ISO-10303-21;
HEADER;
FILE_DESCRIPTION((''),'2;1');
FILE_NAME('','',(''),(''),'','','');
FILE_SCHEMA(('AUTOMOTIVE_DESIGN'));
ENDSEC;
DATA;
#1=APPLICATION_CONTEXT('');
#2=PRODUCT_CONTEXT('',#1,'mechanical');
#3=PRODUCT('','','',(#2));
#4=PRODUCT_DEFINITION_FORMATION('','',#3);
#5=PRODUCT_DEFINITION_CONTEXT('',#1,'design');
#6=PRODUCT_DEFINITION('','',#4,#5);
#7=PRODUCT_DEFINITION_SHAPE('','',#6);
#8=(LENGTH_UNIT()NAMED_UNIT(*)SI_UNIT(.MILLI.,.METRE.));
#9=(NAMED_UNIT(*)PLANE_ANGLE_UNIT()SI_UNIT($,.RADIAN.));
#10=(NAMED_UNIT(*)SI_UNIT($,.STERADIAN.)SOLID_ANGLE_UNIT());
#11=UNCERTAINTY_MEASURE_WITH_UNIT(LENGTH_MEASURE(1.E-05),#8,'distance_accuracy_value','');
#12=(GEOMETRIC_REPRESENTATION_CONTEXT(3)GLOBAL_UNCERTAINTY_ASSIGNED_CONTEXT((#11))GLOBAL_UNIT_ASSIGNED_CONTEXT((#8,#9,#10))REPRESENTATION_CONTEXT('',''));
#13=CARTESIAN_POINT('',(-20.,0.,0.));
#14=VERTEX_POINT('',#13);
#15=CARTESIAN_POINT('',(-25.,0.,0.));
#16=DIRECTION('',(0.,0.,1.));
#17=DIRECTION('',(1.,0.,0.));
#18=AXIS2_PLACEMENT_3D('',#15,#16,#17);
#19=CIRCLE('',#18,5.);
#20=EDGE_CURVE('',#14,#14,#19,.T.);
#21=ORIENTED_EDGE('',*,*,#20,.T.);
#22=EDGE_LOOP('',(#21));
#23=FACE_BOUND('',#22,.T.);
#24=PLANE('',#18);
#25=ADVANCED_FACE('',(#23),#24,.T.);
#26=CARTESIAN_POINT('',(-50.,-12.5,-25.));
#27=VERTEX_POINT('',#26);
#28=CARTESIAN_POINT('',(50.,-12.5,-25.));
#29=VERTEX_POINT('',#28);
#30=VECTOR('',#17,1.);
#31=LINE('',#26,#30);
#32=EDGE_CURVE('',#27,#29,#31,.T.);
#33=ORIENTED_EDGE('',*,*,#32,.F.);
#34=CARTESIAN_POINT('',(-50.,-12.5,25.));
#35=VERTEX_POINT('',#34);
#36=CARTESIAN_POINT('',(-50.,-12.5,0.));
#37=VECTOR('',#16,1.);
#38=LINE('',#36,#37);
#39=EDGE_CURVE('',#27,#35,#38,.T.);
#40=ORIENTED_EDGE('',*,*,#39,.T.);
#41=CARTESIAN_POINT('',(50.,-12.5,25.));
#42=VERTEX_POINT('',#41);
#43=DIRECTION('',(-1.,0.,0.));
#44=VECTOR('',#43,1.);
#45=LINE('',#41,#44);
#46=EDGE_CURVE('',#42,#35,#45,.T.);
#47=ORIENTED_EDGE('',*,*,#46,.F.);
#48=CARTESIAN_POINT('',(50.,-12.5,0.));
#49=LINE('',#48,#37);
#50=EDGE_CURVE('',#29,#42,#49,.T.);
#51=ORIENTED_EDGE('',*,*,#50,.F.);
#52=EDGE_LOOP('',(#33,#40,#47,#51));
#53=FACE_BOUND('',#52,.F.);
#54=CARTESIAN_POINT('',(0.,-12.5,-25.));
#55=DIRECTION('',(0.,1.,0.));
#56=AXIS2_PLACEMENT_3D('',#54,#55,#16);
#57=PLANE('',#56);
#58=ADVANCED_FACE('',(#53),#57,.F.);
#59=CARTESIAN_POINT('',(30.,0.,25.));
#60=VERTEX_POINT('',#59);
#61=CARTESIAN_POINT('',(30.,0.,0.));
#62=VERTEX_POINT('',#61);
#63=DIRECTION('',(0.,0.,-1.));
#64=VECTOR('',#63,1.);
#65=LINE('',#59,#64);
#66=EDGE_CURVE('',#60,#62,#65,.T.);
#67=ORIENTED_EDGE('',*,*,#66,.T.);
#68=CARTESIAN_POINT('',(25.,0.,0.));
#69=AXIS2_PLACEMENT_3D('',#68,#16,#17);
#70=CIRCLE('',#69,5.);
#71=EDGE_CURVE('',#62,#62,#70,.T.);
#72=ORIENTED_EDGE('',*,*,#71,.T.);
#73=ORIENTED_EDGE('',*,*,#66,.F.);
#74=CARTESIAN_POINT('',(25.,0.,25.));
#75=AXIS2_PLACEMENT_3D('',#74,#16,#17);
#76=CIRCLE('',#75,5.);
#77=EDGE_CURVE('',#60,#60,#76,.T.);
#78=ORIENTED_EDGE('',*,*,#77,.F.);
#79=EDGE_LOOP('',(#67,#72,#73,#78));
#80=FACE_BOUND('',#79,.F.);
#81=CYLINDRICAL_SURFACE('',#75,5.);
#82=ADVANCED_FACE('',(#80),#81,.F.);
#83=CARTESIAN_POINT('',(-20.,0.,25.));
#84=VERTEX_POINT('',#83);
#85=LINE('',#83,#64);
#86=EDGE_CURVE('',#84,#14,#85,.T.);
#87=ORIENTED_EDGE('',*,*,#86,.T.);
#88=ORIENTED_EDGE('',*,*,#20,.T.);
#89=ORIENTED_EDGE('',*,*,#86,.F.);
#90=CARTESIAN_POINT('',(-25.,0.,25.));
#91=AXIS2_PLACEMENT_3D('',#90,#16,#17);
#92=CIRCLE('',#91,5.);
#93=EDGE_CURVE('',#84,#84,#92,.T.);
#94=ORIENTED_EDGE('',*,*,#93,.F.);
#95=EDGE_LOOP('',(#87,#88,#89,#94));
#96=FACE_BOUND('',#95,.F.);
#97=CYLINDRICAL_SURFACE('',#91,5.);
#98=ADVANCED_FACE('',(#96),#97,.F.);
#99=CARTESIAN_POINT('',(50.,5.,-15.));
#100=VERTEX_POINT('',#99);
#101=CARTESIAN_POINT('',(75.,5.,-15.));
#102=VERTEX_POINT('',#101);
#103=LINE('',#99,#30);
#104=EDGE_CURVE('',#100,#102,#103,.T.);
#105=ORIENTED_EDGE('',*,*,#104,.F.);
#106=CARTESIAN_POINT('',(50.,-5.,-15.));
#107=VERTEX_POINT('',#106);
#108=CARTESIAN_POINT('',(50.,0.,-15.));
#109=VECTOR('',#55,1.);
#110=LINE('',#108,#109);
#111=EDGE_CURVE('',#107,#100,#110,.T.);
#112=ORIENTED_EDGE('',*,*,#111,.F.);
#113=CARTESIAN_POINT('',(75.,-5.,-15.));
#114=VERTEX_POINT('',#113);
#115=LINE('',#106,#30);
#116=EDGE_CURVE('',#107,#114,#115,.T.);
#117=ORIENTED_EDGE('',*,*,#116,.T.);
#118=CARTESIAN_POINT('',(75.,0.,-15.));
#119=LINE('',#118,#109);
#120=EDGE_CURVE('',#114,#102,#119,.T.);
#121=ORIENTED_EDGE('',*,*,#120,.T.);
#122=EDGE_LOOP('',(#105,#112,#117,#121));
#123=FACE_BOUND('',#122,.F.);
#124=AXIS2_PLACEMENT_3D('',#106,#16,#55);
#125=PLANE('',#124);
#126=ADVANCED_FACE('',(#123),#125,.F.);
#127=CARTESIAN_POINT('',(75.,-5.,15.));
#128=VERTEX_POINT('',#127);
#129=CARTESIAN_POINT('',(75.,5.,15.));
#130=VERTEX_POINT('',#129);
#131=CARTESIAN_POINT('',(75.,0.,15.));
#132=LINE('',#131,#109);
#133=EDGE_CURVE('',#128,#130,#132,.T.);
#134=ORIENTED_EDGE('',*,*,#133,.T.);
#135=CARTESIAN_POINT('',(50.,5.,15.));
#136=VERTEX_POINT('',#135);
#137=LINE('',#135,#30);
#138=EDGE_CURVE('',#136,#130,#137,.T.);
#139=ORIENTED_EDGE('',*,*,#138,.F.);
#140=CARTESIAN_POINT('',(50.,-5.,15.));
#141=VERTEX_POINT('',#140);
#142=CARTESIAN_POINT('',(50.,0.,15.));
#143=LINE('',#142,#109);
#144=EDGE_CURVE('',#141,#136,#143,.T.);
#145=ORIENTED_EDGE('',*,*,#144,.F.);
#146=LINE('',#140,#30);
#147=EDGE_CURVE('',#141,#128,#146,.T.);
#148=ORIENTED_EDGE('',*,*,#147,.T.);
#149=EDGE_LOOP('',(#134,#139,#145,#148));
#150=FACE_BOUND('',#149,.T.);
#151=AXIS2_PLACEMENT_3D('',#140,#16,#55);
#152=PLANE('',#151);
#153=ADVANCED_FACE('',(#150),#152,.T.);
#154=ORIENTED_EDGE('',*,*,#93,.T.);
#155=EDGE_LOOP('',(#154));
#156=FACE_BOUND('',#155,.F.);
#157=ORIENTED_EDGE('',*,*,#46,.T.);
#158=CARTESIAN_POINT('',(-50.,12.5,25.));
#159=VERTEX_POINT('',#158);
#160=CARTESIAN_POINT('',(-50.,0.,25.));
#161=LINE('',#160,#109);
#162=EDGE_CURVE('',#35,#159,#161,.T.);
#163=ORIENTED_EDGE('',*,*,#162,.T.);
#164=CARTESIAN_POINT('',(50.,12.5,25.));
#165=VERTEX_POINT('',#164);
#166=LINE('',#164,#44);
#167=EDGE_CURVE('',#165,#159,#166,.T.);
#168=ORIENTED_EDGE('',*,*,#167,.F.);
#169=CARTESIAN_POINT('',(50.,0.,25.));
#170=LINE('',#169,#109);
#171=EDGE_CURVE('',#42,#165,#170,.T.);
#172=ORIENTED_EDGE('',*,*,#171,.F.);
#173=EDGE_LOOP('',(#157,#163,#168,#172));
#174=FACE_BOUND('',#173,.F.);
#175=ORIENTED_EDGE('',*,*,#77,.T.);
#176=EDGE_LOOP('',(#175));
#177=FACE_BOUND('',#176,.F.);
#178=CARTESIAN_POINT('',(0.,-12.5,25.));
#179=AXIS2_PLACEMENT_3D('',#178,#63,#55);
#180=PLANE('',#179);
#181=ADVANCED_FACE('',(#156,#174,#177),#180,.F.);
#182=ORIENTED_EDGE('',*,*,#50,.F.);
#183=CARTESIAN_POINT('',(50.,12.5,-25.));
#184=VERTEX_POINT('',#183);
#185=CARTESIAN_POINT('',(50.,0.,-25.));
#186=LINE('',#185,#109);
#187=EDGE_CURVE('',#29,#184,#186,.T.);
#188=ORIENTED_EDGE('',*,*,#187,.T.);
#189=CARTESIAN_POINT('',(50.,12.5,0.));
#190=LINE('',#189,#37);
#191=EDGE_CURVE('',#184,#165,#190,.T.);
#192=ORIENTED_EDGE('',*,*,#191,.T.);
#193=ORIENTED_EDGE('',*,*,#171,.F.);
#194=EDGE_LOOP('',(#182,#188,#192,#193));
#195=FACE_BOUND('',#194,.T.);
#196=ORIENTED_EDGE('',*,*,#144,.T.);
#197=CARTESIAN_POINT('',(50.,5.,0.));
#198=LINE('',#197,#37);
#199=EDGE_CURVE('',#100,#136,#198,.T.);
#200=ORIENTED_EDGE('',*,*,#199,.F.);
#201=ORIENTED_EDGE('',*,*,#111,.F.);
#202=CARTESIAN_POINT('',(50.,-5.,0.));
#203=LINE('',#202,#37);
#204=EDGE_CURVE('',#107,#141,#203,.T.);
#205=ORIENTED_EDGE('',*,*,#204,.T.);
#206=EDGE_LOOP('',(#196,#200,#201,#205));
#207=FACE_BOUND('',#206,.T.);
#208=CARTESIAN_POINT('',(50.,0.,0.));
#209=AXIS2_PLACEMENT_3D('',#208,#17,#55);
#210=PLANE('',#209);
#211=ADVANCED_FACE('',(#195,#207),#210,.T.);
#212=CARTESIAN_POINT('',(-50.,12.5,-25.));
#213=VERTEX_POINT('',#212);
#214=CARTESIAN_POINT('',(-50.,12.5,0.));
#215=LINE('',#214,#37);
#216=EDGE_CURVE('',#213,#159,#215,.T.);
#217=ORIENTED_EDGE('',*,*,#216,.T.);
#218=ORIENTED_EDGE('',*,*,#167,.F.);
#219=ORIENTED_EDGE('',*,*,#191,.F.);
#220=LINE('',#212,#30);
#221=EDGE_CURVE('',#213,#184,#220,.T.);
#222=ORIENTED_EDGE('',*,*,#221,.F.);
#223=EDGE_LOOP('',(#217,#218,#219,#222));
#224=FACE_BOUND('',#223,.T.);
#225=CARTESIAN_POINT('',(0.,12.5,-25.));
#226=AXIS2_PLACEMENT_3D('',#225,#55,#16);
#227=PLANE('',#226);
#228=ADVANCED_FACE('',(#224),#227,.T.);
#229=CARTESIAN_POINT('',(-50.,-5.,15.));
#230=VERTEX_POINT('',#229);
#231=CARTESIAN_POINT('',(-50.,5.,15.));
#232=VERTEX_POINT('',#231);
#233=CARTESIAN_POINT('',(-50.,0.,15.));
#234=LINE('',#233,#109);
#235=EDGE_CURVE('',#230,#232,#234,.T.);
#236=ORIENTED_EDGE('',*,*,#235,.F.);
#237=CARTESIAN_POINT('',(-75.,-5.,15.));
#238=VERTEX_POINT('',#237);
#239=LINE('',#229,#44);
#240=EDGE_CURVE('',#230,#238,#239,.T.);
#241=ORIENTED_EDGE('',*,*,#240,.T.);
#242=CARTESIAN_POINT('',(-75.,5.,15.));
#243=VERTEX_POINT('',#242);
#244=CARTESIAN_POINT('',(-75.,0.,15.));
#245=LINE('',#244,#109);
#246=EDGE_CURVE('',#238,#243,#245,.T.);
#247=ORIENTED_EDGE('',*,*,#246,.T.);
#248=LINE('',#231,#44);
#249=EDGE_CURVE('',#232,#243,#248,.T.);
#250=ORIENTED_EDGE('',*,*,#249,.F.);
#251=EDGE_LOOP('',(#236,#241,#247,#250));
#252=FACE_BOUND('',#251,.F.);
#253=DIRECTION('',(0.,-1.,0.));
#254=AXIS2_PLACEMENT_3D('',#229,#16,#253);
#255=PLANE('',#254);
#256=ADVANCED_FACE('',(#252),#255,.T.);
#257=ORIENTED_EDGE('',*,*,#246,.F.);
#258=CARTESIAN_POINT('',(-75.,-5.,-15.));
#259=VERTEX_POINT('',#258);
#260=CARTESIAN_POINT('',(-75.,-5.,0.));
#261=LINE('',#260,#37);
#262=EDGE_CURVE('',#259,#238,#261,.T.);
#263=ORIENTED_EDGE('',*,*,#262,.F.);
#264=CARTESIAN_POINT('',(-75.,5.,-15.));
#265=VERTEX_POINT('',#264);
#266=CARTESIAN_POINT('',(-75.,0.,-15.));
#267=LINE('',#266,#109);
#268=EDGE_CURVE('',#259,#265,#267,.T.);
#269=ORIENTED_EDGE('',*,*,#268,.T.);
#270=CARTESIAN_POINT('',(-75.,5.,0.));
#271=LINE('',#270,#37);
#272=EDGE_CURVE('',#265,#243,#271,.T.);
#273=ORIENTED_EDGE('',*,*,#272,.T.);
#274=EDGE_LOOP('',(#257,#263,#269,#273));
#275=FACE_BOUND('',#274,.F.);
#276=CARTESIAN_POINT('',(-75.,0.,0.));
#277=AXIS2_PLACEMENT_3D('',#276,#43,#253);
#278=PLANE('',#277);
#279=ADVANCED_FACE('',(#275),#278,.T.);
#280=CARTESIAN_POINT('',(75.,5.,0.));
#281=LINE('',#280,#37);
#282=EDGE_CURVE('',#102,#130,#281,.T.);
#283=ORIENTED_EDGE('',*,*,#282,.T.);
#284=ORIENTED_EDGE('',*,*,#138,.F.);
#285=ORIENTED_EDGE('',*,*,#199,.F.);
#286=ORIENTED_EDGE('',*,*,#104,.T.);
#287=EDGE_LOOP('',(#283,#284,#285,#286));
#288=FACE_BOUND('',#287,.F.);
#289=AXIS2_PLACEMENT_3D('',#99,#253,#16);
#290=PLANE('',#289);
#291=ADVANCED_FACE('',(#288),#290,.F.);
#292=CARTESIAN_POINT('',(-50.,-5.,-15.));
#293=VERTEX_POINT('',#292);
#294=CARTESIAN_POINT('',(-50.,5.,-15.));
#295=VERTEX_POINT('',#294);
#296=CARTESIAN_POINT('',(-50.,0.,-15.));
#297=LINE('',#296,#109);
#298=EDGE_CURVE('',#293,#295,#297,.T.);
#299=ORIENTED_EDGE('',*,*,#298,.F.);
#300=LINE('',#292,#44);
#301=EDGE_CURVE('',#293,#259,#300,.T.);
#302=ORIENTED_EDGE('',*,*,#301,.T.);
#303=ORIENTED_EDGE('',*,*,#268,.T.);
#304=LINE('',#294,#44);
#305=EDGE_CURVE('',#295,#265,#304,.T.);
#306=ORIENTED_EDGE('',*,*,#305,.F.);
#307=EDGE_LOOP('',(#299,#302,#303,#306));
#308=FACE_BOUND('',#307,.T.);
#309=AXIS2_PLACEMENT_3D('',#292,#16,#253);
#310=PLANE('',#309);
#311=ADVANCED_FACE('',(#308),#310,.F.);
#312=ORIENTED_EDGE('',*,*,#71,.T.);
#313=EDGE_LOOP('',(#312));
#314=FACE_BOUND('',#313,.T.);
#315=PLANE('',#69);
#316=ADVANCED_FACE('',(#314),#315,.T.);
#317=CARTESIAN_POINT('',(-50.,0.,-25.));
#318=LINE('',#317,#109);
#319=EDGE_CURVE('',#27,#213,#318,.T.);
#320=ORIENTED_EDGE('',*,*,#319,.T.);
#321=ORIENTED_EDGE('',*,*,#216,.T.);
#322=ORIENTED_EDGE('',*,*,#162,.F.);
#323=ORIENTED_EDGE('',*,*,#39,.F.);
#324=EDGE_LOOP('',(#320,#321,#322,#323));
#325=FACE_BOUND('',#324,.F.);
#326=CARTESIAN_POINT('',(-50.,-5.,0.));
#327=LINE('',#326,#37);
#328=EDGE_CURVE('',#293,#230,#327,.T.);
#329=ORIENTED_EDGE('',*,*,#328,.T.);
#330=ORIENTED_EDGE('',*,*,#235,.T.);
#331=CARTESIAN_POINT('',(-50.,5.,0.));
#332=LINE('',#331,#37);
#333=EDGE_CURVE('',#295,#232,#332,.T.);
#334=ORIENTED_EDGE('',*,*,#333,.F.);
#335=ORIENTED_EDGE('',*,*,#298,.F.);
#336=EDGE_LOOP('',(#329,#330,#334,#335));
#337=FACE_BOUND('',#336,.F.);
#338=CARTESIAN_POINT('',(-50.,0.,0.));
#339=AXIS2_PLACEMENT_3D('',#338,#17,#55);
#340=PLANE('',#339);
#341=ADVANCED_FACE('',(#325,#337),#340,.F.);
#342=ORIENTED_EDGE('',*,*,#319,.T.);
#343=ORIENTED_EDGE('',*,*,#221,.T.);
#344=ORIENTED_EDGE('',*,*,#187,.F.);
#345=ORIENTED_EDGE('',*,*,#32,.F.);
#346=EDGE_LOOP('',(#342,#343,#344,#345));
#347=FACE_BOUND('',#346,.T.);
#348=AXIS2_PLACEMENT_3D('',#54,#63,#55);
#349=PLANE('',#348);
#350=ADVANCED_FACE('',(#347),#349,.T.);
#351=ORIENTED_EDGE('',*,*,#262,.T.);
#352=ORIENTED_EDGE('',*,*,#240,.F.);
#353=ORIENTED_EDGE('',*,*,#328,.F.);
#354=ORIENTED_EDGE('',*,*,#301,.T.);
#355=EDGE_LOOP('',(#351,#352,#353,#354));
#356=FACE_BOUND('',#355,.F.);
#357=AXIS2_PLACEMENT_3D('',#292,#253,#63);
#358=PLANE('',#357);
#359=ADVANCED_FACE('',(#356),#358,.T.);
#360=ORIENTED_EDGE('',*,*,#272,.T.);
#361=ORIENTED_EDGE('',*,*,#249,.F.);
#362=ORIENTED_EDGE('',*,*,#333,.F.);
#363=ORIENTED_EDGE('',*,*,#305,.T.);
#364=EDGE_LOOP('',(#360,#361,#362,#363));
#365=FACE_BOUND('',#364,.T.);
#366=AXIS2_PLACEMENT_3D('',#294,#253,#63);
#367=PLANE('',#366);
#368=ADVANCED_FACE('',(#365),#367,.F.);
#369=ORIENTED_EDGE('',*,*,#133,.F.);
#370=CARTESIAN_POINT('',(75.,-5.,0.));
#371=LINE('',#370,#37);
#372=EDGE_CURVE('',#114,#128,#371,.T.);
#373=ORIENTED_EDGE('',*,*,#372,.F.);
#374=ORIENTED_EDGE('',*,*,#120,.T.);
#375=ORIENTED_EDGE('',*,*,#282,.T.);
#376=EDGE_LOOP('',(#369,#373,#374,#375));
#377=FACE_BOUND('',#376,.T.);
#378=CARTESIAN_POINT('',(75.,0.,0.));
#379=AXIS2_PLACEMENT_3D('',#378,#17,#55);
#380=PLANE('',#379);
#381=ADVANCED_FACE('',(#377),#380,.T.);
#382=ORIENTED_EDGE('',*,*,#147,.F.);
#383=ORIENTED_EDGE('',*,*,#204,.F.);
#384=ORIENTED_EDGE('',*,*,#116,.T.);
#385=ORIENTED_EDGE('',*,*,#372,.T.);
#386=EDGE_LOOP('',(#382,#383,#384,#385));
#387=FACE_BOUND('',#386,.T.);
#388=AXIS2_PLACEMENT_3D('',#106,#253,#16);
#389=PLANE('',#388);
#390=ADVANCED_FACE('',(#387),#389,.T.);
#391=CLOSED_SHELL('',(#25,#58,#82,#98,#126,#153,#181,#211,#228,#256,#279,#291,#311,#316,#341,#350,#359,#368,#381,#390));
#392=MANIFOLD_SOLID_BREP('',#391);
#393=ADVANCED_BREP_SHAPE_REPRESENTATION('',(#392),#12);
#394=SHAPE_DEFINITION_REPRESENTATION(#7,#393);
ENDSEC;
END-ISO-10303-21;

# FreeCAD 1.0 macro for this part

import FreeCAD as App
import Part
import Sketcher
Q = App.Units.Quantity

doc = App.newDocument("Part")
body = doc.addObject("PartDesign::Body", "Body")

# Sketch on YZ plane
sketch1 = body.newObject("Sketcher::SketchObject", "Sketch")
sketch1.AttachmentSupport = (doc.getObject("YZ_Plane"), [""])
sketch1.MapMode = "FlatFace"
sketch1.addGeometry([
    Part.LineSegment(App.Vector(-12, 25, 0), App.Vector(-12, -25, 0)),
    Part.LineSegment(App.Vector(-12, -25, 0), App.Vector(12, -25, 0)),
    Part.LineSegment(App.Vector(12, -25, 0), App.Vector(12, 25, 0)),
    Part.LineSegment(App.Vector(12, 25, 0), App.Vector(-12, 25, 0)),
], False)
sketch1.addConstraint([
    Sketcher.Constraint("Coincident", 0, 2, 1, 1),
    Sketcher.Constraint("Coincident", 1, 2, 2, 1),
    Sketcher.Constraint("Coincident", 2, 2, 3, 1),
    Sketcher.Constraint("Coincident", 3, 2, 0, 1),
    Sketcher.Constraint("Vertical", 0),
    Sketcher.Constraint("Horizontal", 1),
    Sketcher.Constraint("Vertical", 2),
    Sketcher.Constraint("Horizontal", 3),
    Sketcher.Constraint("Symmetric", 0, 2, 2, 2, -1, 1),
    Sketcher.Constraint("DistanceX", 1, 1, 1, 2, Q("25 mm")),
    Sketcher.Constraint("DistanceY", 0, 2, 0, 1, Q("50 mm")),
])
pad1 = body.newObject("PartDesign::Pad", "Pad")
pad1.Profile = sketch1
pad1.Length = 100
pad1.Midplane = True

# Sketch on YZ plane
sketch2 = body.newObject("Sketcher::SketchObject", "Sketch001")
sketch2.AttachmentSupport = (doc.getObject("YZ_Plane"), [""])
sketch2.MapMode = "FlatFace"
sketch2.AttachmentOffset = App.Placement(App.Vector(0, 0, 50), App.Rotation())
sketch2.addGeometry([
    Part.LineSegment(App.Vector(-5, 15, 0), App.Vector(-5, -15, 0)),
    Part.LineSegment(App.Vector(-5, -15, 0), App.Vector(5, -15, 0)),
    Part.LineSegment(App.Vector(5, -15, 0), App.Vector(5, 15, 0)),
    Part.LineSegment(App.Vector(5, 15, 0), App.Vector(-5, 15, 0)),
], False)
sketch2.addConstraint([
    Sketcher.Constraint("Coincident", 0, 2, 1, 1),
    Sketcher.Constraint("Coincident", 1, 2, 2, 1),
    Sketcher.Constraint("Coincident", 2, 2, 3, 1),
    Sketcher.Constraint("Coincident", 3, 2, 0, 1),
    Sketcher.Constraint("Vertical", 0),
    Sketcher.Constraint("Horizontal", 1),
    Sketcher.Constraint("Vertical", 2),
    Sketcher.Constraint("Horizontal", 3),
    Sketcher.Constraint("Symmetric", 0, 2, 2, 2, -1, 1),
    Sketcher.Constraint("DistanceX", 1, 1, 1, 2, Q("10 mm")),
    Sketcher.Constraint("DistanceY", 0, 2, 0, 1, Q("30 mm")),
])
pad2 = body.newObject("PartDesign::Pad", "Pad001")
pad2.Profile = sketch2
pad2.Length = 25
body2 = doc.addObject("PartDesign::Body", "Body001")
doc.recompute()

body2.BaseFeature = body
doc.recompute()

mirroring = doc.addObject("Part::Mirroring", "Mirroring")
mirroring.Source = body
mirroring.Base = App.Vector(0, 0, 0)
mirroring.Normal = App.Vector(1, 0, 0)
body3 = doc.addObject("PartDesign::Body", "Body002")
body3.BaseFeature = mirroring
boolean = body2.newObject("PartDesign::Boolean", "Boolean")
boolean.Type = "Fuse"
boolean.addObjects([body3])
doc.recompute()

# Sketch on XY plane
sketch3 = body2.newObject("Sketcher::SketchObject", "Sketch002")
sketch3.AttachmentSupport = (doc.getObject("XY_Plane001"), [""])
sketch3.MapMode = "FlatFace"
sketch3.AttachmentOffset = App.Placement(App.Vector(0, 0, 25), App.Rotation())
sketch3.addGeometry([
    Part.Circle(App.Vector(-25, 0, 0), App.Vector(0, 0, 1), 5),
    Part.Circle(App.Vector(25, 0, 0), App.Vector(0, 0, 1), 5),
], False)
sketch3.addConstraint([
    Sketcher.Constraint("Equal", 0, 1),
    Sketcher.Constraint("Symmetric", 0, 3, 1, 3, -1, 1),
    Sketcher.Constraint("PointOnObject", 0, 3, -1),
    Sketcher.Constraint("Diameter", 0, Q("10 mm")),
    Sketcher.Constraint("DistanceX", 0, 3, -1, 1, Q("25 mm")),
])
pocket1 = body2.newObject("PartDesign::Pocket", "Pocket")
pocket1.Profile = sketch3
pocket1.Length = 25
mirroring.Visibility = False

doc.recompute()
